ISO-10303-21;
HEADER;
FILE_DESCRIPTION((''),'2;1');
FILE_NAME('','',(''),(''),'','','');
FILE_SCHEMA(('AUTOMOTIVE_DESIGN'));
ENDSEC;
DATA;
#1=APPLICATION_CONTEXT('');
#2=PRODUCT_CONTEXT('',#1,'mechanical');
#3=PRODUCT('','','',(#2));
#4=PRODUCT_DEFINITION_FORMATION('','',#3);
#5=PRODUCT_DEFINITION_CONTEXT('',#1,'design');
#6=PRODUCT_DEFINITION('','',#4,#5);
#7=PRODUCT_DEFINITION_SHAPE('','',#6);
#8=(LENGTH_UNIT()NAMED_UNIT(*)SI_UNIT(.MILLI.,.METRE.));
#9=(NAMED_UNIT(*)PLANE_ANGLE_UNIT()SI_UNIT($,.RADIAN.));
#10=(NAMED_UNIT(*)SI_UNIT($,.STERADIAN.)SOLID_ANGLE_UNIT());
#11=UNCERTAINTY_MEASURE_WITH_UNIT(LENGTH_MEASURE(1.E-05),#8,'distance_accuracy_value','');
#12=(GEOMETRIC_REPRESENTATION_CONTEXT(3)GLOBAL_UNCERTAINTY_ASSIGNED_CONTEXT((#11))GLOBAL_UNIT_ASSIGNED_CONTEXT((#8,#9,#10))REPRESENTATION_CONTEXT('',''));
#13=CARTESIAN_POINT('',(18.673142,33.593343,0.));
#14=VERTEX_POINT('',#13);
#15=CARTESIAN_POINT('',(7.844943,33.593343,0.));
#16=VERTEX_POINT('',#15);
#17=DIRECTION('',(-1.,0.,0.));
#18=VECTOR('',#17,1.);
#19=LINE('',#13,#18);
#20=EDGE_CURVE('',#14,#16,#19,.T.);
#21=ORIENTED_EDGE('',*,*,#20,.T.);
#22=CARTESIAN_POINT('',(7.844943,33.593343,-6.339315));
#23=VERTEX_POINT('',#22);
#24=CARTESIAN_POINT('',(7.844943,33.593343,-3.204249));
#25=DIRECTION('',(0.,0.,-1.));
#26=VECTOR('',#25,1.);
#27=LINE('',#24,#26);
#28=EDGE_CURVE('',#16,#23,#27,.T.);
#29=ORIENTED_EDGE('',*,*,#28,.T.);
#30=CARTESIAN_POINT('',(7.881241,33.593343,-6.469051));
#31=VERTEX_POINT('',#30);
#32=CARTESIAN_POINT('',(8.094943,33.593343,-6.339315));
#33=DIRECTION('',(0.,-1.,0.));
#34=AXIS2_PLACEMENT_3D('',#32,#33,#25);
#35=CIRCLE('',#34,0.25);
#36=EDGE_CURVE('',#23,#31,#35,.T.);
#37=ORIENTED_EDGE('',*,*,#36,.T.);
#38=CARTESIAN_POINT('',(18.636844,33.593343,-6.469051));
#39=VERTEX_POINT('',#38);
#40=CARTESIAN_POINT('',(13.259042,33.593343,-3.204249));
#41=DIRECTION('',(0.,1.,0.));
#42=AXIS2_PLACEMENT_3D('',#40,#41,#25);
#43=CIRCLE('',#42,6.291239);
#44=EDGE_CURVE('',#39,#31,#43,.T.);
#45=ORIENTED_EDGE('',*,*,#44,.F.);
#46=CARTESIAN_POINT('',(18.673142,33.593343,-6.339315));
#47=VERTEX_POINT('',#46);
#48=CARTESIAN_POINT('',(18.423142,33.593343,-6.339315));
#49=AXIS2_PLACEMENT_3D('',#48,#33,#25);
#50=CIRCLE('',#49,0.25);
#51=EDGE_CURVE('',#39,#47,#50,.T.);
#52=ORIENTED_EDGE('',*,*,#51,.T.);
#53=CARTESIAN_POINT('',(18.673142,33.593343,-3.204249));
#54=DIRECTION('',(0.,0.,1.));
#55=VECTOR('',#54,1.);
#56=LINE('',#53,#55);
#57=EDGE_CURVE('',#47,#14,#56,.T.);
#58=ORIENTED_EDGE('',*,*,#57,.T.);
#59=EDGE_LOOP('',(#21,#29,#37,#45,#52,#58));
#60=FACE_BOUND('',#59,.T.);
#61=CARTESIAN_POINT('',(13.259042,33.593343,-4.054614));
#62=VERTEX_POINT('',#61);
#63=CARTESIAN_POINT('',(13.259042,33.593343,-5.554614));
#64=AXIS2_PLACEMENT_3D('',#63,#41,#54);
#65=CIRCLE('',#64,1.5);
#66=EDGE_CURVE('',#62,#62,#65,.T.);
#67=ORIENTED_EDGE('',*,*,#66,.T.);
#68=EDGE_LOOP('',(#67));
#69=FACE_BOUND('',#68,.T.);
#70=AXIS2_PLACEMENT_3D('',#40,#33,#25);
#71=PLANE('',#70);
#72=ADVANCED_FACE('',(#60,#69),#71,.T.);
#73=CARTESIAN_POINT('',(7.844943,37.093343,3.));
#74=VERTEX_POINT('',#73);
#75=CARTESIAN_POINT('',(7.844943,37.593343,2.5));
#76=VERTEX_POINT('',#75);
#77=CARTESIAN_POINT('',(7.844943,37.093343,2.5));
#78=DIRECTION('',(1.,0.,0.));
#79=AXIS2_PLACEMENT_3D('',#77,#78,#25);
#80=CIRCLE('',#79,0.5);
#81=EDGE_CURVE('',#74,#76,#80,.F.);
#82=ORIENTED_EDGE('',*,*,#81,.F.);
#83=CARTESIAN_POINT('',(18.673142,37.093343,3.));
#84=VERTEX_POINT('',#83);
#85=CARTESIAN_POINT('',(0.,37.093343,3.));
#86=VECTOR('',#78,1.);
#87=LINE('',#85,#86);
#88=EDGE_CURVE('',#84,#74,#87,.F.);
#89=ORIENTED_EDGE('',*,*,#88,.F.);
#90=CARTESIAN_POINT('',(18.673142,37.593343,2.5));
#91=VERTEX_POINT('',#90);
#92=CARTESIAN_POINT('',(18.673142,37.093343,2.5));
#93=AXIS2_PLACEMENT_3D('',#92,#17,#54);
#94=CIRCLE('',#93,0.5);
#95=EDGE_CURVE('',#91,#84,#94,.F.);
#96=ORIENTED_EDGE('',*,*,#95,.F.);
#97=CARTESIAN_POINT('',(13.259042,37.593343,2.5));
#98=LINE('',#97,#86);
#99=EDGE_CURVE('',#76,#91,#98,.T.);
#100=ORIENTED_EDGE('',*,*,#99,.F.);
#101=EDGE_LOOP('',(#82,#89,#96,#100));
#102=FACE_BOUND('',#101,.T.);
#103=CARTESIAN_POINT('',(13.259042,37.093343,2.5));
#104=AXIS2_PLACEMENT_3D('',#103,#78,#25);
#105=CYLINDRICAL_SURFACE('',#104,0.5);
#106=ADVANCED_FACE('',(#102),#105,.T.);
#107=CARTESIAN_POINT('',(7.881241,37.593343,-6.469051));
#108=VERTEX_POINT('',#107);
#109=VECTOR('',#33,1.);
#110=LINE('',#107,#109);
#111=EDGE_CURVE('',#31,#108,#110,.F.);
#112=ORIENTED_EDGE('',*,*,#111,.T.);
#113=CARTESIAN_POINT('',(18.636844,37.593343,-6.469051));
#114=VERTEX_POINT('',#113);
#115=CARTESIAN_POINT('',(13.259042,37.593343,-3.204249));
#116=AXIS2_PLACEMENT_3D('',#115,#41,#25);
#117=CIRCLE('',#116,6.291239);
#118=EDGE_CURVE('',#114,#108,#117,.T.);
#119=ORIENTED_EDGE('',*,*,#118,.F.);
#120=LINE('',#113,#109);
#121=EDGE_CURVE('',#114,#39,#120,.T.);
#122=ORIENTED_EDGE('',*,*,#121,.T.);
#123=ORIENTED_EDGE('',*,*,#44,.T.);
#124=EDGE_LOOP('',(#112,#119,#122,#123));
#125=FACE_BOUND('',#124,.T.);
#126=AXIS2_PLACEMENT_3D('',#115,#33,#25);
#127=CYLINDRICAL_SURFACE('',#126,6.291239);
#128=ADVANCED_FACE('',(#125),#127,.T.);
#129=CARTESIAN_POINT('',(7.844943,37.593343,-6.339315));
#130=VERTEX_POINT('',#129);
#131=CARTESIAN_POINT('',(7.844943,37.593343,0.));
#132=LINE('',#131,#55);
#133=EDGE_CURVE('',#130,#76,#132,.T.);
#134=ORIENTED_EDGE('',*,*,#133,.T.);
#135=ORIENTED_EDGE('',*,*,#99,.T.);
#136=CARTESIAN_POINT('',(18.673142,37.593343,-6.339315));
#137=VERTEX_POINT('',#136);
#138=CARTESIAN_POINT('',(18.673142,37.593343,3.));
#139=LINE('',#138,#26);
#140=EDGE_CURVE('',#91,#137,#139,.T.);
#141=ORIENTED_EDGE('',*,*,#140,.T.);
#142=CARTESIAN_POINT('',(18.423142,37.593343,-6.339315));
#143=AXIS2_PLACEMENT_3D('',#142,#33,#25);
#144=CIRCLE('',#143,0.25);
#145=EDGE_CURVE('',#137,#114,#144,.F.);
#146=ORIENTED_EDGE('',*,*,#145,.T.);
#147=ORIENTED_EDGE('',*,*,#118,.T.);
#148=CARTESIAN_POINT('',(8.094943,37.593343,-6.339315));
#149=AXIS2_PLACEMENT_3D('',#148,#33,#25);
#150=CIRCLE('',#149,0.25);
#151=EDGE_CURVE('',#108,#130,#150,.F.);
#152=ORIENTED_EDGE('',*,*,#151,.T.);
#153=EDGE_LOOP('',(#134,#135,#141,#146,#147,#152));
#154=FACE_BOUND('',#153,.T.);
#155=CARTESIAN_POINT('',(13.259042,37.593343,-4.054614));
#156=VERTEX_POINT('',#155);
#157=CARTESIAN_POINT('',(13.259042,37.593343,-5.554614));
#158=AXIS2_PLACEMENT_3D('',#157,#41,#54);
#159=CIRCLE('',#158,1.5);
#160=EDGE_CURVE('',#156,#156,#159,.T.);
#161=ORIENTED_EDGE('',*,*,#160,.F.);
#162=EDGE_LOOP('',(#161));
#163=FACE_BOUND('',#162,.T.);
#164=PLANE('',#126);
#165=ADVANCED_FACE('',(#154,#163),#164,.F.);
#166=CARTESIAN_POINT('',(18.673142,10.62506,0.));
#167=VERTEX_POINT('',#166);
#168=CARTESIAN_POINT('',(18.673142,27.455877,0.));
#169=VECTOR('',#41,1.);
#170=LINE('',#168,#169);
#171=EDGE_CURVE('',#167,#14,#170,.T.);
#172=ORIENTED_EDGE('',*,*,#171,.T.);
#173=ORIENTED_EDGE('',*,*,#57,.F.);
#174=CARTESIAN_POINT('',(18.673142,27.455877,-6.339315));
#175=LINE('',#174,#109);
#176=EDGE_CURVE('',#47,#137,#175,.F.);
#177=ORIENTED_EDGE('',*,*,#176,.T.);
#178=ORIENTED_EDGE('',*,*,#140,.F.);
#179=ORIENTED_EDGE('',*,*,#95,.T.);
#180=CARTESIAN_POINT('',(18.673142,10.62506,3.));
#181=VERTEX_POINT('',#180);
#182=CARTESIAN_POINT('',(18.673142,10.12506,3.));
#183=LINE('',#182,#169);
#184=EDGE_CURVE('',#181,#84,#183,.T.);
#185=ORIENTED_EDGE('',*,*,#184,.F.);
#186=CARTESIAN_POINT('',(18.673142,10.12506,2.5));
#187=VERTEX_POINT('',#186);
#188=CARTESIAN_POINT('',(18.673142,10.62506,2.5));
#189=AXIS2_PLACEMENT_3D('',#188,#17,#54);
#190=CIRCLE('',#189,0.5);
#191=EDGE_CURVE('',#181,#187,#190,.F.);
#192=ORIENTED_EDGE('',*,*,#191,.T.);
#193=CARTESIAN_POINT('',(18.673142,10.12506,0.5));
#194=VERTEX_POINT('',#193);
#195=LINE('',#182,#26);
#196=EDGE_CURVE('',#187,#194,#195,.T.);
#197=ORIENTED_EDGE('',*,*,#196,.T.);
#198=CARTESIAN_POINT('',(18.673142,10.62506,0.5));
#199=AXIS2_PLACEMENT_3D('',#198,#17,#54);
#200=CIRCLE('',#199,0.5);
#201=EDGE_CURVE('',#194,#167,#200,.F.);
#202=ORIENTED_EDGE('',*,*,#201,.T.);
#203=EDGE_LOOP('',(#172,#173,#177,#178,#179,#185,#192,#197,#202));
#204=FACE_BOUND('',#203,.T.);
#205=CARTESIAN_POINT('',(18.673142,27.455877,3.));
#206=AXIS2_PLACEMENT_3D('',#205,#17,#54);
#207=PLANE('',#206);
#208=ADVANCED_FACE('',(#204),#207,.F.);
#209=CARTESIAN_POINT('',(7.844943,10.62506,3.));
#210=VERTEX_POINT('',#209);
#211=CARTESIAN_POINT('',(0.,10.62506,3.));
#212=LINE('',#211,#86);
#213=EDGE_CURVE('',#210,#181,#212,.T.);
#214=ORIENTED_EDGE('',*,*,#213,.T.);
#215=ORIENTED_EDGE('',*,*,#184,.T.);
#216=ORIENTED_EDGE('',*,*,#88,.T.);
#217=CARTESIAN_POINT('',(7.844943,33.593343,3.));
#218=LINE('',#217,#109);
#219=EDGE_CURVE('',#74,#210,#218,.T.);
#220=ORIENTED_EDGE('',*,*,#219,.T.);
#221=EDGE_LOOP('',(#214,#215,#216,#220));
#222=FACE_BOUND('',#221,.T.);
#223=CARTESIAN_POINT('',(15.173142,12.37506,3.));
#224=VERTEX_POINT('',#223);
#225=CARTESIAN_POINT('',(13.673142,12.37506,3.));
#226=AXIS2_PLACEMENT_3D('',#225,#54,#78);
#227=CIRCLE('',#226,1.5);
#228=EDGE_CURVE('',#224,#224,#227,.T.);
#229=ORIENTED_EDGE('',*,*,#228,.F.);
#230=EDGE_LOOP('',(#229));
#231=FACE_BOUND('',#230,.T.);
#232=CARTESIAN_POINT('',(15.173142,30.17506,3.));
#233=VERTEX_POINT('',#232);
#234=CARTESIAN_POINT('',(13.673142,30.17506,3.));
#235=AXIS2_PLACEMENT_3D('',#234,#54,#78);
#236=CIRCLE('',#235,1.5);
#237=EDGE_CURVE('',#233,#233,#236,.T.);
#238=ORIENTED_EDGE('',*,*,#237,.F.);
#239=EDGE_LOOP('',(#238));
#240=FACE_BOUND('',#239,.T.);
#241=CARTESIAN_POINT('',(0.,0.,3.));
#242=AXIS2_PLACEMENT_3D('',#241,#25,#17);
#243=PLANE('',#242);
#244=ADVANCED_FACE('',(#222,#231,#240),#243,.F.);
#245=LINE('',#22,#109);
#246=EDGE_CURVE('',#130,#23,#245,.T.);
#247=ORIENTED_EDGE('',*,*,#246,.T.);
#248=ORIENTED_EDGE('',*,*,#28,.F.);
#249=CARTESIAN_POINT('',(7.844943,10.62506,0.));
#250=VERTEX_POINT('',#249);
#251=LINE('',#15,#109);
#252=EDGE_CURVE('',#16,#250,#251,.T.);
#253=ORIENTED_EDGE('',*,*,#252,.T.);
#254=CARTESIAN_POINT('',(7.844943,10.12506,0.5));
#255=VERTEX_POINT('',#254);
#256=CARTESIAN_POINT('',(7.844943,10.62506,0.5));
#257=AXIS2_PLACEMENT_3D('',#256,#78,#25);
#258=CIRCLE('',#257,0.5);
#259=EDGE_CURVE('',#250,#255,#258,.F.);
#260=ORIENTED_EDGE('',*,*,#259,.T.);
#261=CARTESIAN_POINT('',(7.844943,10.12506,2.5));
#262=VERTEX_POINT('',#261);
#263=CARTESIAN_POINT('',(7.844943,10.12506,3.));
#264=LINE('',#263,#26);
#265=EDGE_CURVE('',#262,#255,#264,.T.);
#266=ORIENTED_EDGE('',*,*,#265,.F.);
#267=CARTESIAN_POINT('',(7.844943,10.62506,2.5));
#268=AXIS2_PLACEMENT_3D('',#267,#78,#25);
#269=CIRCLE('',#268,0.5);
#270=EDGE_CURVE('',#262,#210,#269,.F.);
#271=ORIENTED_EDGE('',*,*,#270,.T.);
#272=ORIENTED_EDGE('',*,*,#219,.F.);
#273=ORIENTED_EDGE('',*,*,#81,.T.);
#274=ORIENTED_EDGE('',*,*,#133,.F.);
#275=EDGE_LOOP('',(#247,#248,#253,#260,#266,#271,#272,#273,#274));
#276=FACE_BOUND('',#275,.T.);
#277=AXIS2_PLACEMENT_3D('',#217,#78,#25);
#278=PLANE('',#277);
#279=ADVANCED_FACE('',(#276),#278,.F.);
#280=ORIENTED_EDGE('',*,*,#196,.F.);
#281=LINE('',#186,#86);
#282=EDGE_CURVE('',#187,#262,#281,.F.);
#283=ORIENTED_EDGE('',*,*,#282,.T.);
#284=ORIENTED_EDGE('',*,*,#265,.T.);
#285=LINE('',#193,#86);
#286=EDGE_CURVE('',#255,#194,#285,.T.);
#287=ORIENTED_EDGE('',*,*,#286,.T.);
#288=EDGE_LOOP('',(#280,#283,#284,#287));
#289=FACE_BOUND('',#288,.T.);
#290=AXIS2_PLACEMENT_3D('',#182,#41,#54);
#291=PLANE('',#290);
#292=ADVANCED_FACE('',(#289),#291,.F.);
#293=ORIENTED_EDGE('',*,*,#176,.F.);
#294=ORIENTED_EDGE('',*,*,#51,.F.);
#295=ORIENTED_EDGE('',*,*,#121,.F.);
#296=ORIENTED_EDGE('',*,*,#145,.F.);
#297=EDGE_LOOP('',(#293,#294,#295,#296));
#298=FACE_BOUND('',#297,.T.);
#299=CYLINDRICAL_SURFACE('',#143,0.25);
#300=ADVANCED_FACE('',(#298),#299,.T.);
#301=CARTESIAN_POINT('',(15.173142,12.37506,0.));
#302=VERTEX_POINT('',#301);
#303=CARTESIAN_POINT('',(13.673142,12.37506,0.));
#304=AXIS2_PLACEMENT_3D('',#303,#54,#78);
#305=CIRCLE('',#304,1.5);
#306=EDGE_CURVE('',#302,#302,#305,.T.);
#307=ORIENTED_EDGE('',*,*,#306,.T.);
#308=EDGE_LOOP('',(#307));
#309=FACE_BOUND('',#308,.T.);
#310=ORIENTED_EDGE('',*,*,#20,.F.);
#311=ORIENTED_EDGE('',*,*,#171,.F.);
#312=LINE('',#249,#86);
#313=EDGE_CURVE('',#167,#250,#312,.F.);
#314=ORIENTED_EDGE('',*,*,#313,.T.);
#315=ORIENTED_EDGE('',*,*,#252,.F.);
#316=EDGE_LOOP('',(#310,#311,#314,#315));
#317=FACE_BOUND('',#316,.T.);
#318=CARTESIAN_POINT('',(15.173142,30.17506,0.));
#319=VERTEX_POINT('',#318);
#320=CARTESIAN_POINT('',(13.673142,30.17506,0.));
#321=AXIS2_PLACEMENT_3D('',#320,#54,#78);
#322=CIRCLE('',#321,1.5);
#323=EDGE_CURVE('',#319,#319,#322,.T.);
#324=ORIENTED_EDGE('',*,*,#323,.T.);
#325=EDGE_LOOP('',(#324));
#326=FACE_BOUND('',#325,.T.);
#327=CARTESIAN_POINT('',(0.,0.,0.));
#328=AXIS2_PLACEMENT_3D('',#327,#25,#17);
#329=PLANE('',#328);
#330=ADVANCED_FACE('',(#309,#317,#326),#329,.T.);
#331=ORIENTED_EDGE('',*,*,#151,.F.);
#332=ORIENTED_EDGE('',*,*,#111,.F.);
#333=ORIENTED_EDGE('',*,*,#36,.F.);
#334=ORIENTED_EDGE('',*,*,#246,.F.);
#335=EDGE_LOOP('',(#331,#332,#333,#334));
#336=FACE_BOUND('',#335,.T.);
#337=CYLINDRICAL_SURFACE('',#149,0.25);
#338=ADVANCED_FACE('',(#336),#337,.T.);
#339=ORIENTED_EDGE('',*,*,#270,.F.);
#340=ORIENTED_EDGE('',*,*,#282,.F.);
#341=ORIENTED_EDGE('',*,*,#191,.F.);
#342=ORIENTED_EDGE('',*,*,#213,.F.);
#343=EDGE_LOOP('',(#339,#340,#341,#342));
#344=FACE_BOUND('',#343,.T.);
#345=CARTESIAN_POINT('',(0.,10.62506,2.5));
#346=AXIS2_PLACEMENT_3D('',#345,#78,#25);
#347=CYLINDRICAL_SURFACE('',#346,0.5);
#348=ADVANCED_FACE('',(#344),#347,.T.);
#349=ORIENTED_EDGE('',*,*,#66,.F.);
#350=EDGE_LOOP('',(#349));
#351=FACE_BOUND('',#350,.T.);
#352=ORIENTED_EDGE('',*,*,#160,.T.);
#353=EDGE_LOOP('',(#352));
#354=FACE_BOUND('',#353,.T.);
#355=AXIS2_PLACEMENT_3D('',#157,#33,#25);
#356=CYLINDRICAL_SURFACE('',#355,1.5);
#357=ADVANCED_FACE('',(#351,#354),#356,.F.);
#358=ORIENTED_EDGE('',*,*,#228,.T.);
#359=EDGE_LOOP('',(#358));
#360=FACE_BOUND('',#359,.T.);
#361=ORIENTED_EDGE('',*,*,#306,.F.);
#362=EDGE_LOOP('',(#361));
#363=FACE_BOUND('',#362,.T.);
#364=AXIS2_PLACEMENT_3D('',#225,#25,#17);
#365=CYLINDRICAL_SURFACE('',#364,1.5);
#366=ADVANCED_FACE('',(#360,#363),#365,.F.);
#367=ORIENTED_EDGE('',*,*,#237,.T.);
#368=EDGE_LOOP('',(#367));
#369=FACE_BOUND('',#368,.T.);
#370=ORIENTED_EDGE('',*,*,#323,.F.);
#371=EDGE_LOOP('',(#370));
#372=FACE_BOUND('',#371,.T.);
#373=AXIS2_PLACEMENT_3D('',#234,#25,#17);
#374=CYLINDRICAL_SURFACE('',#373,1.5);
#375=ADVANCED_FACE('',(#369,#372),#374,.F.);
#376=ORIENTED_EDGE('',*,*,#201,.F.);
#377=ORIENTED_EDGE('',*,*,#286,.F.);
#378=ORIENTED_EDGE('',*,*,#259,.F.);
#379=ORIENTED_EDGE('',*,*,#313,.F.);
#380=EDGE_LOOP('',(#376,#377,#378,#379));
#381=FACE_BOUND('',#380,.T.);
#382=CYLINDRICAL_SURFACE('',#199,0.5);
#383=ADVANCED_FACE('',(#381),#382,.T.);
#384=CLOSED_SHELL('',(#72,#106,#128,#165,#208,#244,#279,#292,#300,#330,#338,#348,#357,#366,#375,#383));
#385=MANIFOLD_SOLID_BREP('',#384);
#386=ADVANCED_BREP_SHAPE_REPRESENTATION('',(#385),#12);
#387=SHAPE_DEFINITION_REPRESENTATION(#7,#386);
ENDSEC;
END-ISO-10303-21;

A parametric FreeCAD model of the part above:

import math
import FreeCAD as App
import Part
import Sketcher
from FreeCAD import Vector
Q = App.Units.Quantity


def edges_at(feature, points):
    """Names of the edges that pass closest to the given points."""
    edges = feature.Shape.Edges
    near = lambda p: min(range(len(edges)), key=lambda i: edges[i].distToShape(Part.Vertex(*p))[0])
    return sorted({f"Edge{near(p) + 1}" for p in points})


def add_polygon(sketch, points):
    """Adds a closed chain of lines whose ends are joined by coincident constraints."""
    first, n = sketch.GeometryCount, len(points)
    for a, b in zip(points, points[1:] + points[:1]):
        sketch.addGeometry(Part.LineSegment(App.Vector(*a, 0), App.Vector(*b, 0)), False)
    for i in range(n):
        sketch.addConstraint(Sketcher.Constraint("Coincident", first + i, 2, first + (i + 1) % n, 1))

doc = App.newDocument("Part")
body = doc.addObject("PartDesign::Body", "Body")

sketch1 = body.newObject("Sketcher::SketchObject", "Sketch")
sketch1.AttachmentSupport = (doc.getObject("XY_Plane"), [""])
sketch1.MapMode = "FlatFace"
add_polygon(sketch1, [(18.7, 10.1), (18.7, 33.6), (7.8, 33.6), (7.8, 10.1)])
sketch1.addGeometry(Part.Circle(Vector(13.7, 12.4, 0), Vector(0, 0, 1), 1.5), False)
sketch1.addGeometry(Part.Circle(Vector(13.7, 30.2, 0), Vector(0, 0, 1), 1.5), False)
sketch1.addConstraint([
    Sketcher.Constraint("Vertical", 0),
    Sketcher.Constraint("Horizontal", 1),
    Sketcher.Constraint("Vertical", 2),
    Sketcher.Constraint("Horizontal", 3),
    Sketcher.Constraint("Equal", 4, 5),
    Sketcher.Constraint("Vertical", 4, 3, 5, 3),
    Sketcher.Constraint("Diameter", 4, Q("3 mm")),
    Sketcher.Constraint("DistanceX", 5, 3, 0, 2, Q("5 mm")),
    Sketcher.Constraint("DistanceY", 4, 3, 5, 3, Q("17.8 mm")),
    Sketcher.Constraint("DistanceY", 2, 2, 4, 3, Q("2.25 mm")),
    Sketcher.Constraint("DistanceX", 1, 2, 1, 1, Q("10.828199 mm")),
    Sketcher.Constraint("DistanceY", 0, 1, 0, 2, Q("23.468284 mm")),
    Sketcher.Constraint("DistanceY", -1, 1, 4, 3, Q("12.37506 mm")),
    Sketcher.Constraint("DistanceX", -1, 1, 4, 3, Q("13.673142 mm")),
])
pad1 = body.newObject("PartDesign::Pad", "Pad")
pad1.Profile = sketch1
pad1.Length = 3

sketch2 = body.newObject("Sketcher::SketchObject", "Sketch001")
sketch2.AttachmentSupport = (doc.getObject("XZ_Plane"), [""])
sketch2.MapMode = "FlatFace"
sketch2.AttachmentOffset = App.Placement(Vector(0, 0, -33.593343), App.Rotation())
sketch2.addGeometry([
    Part.LineSegment(Vector(7.8, 0, 0), Vector(7.8, 3, 0)),
    Part.LineSegment(Vector(7.8, 3, 0), Vector(18.7, 3, 0)),
    Part.LineSegment(Vector(18.7, 3, 0), Vector(18.7, 0, 0)),
    Part.ArcOfCircle(Part.Circle(Vector(13.3, -3.2, 0), Vector(0, 0, 1), 6.3), math.radians(149), math.radians(391)),
    Part.Circle(Vector(13.3, -5.6, 0), Vector(0, 0, 1), 1.5),
], False)
sketch2.addConstraint([
    Sketcher.Constraint("Coincident", 0, 2, 1, 1),
    Sketcher.Constraint("Coincident", 1, 2, 2, 1),
    Sketcher.Constraint("Coincident", 2, 2, 3, 2),
    Sketcher.Constraint("Coincident", 3, 1, 0, 1),
    Sketcher.Constraint("Vertical", 0),
    Sketcher.Constraint("Horizontal", 1),
    Sketcher.Constraint("Vertical", 2),
    Sketcher.Constraint("PointOnObject", 2, 2, -1),
    Sketcher.Constraint("PointOnObject", 3, 1, -1),
    Sketcher.Constraint("Vertical", 3, 3, 4, 3),
    Sketcher.Constraint("Diameter", 4, Q("3 mm")),
    Sketcher.Constraint("DistanceY", 0, 1, 0, 2, Q("3 mm")),
    Sketcher.Constraint("Radius", 3, Q("6.291239 mm")),
    Sketcher.Constraint("DistanceX", 1, 1, 1, 2, Q("10.828199 mm")),
    Sketcher.Constraint("DistanceX", -1, 1, 3, 3, Q("13.259042 mm")),
    Sketcher.Constraint("DistanceY", 4, 3, -1, 1, Q("5.554614 mm")),
])
pad2 = body.newObject("PartDesign::Pad", "Pad001")
pad2.Profile = sketch2
pad2.Length = 4
pad2.Reversed = True

sketch3 = body.newObject("Sketcher::SketchObject", "Sketch002")
sketch3.AttachmentSupport = (doc.getObject("XZ_Plane"), [""])
sketch3.MapMode = "FlatFace"
sketch3.addGeometry([
    Part.LineSegment(Vector(8, 0, 0), Vector(8, -6, 0)),
    Part.ArcOfCircle(Part.Circle(Vector(13, -3, 0), Vector(0, 0, 1), 6), math.radians(149), math.radians(211)),
    Part.LineSegment(Vector(19, -6, 0), Vector(19, 0, 0)),
    Part.ArcOfCircle(Part.Circle(Vector(13, -3, 0), Vector(0, 0, 1), 6), math.radians(-31), math.radians(31)),
], False)
sketch3.addConstraint([
    Sketcher.Constraint("Coincident", 0, 1, 1, 1),
    Sketcher.Constraint("Coincident", 1, 2, 0, 2),
    Sketcher.Constraint("Coincident", 2, 1, 3, 1),
    Sketcher.Constraint("Coincident", 3, 2, 2, 2),
    Sketcher.Constraint("Vertical", 0),
    Sketcher.Constraint("Vertical", 2),
    Sketcher.Constraint("Coincident", 3, 3, 1, 3),
    Sketcher.Constraint("Equal", 1, 3),
    Sketcher.Constraint("PointOnObject", 0, 1, -1),
    Sketcher.Constraint("PointOnObject", 3, 2, -1),
    Sketcher.Constraint("Radius", 1, Q("6.291239 mm")),
    Sketcher.Constraint("DistanceX", 0, 1, 1, 3, Q("5.4141 mm")),
    Sketcher.Constraint("DistanceX", -1, 1, 1, 3, Q("13.259042 mm")),
])
pocket1 = body.newObject("PartDesign::Pocket", "Pocket")
pocket1.Profile = sketch3
pocket1.Length = 800
doc.recompute()

fillet = body.newObject("PartDesign::Fillet", "Fillet")
fillet.Base = (pocket1, edges_at(pocket1, [(13.259, 37.593, 3)]))
fillet.Radius = 0.5
doc.recompute()

fillet2 = body.newObject("PartDesign::Fillet", "Fillet001")
fillet2.Base = (fillet, edges_at(fillet, [(18.673, 35.593, -6.408)]))
fillet2.Radius = 0.25
doc.recompute()

fillet3 = body.newObject("PartDesign::Fillet", "Fillet002")
fillet3.Base = (fillet2, edges_at(fillet2, [(7.845, 35.593, -6.408)]))
fillet3.Radius = 0.25
doc.recompute()

fillet4 = body.newObject("PartDesign::Fillet", "Fillet003")
fillet4.Base = (fillet3, edges_at(fillet3, [(13.259, 10.125, 3), (13.259, 10.125, 0)]))
fillet4.Radius = 0.5

doc.recompute()
